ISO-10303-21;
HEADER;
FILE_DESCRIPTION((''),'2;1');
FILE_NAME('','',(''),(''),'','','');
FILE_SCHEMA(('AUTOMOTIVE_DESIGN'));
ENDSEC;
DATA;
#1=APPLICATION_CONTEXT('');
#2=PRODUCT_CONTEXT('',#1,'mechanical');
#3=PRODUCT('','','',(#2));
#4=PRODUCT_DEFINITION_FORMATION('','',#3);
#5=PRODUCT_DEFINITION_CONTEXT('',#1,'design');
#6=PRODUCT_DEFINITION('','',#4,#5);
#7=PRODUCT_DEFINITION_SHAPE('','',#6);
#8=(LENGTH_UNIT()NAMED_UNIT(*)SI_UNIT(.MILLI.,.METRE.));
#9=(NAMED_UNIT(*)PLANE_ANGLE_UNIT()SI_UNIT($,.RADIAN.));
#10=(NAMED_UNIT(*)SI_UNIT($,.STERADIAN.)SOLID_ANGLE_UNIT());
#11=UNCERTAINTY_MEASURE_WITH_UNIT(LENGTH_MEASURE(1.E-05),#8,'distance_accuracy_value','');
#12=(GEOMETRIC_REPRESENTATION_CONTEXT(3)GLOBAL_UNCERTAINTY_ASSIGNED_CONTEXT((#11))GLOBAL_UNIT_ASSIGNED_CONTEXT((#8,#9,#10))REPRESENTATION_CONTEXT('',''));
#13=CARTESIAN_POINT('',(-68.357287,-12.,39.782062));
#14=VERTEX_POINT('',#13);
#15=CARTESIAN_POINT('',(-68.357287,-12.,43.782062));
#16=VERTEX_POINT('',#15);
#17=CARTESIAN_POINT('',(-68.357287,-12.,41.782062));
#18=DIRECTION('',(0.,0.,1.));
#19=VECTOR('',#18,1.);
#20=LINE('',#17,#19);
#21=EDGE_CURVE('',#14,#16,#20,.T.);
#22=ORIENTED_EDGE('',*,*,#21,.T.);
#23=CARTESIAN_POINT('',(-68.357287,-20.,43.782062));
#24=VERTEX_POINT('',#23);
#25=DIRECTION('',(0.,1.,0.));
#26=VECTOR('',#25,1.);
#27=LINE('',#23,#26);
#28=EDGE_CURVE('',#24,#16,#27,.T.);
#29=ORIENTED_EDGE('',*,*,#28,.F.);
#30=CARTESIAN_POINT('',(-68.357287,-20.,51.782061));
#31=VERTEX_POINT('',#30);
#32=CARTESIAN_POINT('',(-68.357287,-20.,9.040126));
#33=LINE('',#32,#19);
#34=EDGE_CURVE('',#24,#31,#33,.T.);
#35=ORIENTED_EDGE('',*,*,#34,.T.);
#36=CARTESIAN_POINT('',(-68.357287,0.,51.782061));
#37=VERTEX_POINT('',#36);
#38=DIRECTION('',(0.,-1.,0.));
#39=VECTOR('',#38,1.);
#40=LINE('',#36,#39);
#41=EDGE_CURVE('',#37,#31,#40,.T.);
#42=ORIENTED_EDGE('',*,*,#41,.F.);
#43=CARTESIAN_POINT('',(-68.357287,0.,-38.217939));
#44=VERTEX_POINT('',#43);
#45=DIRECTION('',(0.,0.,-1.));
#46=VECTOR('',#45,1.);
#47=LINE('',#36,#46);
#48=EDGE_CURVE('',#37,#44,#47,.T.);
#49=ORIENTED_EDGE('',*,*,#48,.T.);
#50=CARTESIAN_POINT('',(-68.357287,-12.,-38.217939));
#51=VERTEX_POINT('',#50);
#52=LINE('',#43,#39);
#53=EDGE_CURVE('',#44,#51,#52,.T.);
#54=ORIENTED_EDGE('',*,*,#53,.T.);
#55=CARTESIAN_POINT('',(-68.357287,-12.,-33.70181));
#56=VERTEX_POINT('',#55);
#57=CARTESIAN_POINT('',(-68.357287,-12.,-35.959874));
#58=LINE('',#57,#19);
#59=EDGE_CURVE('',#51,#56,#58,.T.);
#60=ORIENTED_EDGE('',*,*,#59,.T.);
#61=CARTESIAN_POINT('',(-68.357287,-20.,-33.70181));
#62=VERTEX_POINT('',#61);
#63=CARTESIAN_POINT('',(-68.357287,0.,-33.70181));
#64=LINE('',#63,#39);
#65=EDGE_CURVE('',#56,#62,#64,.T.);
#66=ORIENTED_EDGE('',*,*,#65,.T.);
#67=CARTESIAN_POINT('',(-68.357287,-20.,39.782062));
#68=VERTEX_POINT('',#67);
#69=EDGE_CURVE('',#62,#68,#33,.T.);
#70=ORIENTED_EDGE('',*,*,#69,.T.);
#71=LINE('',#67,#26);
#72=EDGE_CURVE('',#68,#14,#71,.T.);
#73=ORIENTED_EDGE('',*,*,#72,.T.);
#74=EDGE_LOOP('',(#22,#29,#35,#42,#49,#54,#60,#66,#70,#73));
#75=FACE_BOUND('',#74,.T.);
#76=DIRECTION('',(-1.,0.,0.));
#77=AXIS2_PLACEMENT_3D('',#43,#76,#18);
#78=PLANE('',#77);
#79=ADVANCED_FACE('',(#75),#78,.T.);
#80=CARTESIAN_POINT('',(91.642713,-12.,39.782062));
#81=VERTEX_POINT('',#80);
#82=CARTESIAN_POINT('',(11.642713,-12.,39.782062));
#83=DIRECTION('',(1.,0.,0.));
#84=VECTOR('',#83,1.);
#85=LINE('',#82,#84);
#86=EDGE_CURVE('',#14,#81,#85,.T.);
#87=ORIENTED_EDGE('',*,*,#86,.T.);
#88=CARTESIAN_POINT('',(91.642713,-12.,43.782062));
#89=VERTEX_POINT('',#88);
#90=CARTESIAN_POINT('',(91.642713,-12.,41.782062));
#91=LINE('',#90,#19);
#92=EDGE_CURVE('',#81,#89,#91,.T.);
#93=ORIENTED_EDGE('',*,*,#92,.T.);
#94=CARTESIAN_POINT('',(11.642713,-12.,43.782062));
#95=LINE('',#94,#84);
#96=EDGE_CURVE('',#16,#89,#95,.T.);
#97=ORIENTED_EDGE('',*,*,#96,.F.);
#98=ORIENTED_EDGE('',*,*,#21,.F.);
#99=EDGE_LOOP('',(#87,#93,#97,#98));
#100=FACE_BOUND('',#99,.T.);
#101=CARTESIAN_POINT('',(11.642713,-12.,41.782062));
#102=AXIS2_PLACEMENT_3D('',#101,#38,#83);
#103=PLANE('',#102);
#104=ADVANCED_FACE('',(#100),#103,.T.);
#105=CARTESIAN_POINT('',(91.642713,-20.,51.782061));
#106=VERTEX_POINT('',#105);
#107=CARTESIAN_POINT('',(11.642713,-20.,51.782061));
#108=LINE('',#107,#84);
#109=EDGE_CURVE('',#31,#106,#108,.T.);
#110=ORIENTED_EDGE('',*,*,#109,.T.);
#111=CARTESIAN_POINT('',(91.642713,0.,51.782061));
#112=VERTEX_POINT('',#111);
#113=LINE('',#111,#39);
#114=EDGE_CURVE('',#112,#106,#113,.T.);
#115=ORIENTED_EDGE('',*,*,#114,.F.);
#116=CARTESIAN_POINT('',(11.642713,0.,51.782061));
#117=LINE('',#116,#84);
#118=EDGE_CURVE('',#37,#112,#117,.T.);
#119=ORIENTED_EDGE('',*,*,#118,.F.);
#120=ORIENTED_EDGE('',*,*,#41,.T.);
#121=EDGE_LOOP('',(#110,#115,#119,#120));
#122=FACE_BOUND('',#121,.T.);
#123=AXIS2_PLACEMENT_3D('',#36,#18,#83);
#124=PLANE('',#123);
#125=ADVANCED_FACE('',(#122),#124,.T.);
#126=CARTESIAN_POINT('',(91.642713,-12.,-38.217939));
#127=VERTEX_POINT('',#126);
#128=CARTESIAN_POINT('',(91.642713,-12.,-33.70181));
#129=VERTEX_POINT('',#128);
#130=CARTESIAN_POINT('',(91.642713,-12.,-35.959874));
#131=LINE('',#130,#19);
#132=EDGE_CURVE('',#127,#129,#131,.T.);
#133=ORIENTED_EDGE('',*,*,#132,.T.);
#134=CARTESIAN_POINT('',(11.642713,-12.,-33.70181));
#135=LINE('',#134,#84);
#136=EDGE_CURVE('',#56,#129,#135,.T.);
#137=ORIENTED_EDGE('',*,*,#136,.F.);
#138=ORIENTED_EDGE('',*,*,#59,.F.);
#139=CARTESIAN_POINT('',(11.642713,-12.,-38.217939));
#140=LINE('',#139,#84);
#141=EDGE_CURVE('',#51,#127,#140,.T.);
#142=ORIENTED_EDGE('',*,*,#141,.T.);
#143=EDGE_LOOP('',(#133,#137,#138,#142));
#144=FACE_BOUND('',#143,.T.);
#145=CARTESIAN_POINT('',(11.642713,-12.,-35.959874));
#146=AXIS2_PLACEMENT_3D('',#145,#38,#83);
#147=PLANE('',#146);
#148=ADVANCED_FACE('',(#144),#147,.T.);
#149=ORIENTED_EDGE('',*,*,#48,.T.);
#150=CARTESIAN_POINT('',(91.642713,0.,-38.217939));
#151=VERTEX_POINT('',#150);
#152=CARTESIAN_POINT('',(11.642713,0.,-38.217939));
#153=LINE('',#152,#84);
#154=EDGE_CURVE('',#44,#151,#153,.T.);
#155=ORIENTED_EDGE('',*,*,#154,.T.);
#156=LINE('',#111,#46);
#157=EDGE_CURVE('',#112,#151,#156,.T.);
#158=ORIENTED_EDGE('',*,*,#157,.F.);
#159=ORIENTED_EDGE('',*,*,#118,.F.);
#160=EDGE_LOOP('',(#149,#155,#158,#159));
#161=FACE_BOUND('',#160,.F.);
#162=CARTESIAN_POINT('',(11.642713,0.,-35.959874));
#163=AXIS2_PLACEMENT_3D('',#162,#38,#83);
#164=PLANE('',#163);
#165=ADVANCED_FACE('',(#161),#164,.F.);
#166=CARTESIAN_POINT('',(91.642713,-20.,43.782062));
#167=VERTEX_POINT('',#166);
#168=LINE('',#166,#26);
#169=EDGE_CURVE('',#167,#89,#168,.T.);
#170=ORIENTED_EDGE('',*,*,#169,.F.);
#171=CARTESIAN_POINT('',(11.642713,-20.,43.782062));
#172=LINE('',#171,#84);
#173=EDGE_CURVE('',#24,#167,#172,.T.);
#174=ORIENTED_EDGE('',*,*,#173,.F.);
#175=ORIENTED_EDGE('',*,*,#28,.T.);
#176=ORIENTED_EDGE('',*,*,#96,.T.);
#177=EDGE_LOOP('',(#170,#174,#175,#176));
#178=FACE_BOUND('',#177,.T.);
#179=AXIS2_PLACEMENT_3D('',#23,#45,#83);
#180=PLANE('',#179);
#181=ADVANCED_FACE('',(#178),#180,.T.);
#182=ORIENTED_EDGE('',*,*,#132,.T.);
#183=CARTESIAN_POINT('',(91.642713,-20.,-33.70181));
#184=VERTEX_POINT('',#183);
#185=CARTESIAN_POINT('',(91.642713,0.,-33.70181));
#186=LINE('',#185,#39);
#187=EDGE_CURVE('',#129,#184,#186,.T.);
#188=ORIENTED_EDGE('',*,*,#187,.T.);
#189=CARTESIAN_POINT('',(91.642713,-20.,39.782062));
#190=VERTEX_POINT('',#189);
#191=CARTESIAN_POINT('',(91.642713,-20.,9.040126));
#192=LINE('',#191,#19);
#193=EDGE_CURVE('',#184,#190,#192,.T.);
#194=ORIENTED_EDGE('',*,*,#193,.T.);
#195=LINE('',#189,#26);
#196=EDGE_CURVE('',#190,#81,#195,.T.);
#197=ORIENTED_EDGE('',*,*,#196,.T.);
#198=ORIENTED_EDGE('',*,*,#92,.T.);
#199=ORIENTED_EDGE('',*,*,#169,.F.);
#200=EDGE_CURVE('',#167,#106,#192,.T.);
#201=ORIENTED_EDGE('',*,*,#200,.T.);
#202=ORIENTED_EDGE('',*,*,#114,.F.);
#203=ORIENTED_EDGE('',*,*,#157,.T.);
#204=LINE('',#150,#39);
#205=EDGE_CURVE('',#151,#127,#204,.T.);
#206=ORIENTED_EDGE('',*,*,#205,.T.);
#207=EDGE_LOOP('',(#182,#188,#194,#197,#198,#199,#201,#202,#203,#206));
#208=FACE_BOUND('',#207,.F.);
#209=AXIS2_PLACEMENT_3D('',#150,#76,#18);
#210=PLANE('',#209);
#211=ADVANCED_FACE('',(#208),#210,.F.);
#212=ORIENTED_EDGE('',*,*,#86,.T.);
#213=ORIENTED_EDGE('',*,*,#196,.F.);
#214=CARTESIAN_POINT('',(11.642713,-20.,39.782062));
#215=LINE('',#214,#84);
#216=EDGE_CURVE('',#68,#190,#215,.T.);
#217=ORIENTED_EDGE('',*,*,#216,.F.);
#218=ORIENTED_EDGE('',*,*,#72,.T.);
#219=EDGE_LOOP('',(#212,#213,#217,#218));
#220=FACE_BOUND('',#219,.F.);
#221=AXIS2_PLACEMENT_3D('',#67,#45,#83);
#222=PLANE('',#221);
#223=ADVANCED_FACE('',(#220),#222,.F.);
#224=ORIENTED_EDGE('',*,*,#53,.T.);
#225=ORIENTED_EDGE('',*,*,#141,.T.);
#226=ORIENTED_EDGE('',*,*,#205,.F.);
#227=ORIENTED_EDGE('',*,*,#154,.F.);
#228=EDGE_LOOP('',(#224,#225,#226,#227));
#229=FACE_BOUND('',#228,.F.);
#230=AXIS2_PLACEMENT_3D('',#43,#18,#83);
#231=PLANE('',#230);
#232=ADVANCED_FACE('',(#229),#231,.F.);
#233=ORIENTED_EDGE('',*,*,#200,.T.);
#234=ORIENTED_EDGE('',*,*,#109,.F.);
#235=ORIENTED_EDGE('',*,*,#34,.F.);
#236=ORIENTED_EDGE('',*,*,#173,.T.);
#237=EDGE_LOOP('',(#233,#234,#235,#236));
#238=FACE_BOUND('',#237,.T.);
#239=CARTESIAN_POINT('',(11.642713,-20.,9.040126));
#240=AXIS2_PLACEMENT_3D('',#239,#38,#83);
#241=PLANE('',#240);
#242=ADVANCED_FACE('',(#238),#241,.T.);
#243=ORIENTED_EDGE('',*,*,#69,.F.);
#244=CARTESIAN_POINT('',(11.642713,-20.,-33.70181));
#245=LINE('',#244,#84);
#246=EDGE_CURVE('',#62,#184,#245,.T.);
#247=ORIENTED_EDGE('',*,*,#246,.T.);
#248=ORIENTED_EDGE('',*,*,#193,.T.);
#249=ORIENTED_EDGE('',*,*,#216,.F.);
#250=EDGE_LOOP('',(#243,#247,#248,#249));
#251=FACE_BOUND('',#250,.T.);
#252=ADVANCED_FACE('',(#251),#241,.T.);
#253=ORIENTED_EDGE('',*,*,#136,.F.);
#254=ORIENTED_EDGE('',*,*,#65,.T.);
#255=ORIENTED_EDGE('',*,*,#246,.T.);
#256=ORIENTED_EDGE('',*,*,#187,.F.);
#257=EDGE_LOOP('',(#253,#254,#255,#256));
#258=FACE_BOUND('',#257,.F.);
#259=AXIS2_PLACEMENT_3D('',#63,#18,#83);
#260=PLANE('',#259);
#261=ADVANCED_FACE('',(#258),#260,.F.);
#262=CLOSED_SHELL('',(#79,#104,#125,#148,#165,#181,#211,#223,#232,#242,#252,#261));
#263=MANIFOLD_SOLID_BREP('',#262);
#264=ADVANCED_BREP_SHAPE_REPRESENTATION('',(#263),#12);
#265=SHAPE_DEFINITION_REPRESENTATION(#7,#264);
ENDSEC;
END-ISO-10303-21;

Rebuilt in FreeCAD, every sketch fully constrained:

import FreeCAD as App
import Part
import Sketcher

doc = App.newDocument("Part")
body = doc.addObject("PartDesign::Body", "Body")

sketch1 = doc.addObject("Sketcher::SketchObject", "Sketch")
body.addObject(sketch1)
sketch1.AttachmentSupport = (doc.XZ_Plane, [""])
sketch1.MapMode = "FlatFace"
sketch1.addGeometry([
    Part.LineSegment(App.Vector(-68, 52, 0), App.Vector(-68, -34, 0)),
    Part.LineSegment(App.Vector(-68, -34, 0), App.Vector(92, -34, 0)),
    Part.LineSegment(App.Vector(92, -34, 0), App.Vector(92, 52, 0)),
    Part.LineSegment(App.Vector(92, 52, 0), App.Vector(-68, 52, 0)),
], False)
sketch1.addConstraint([
    Sketcher.Constraint("Coincident", 0, 2, 1, 1),
    Sketcher.Constraint("Coincident", 1, 2, 2, 1),
    Sketcher.Constraint("Coincident", 2, 2, 3, 1),
    Sketcher.Constraint("Coincident", 3, 2, 0, 1),
    Sketcher.Constraint("Vertical", 0),
    Sketcher.Constraint("Horizontal", 1),
    Sketcher.Constraint("Vertical", 2),
    Sketcher.Constraint("Horizontal", 3),
    Sketcher.Constraint("DistanceX", 1, 1, 1, 2, 160.0),
    Sketcher.Constraint("DistanceY", 0, 2, 0, 1, 85.483871),
    Sketcher.Constraint("DistanceY", 0, 2, -1, 1, 33.70181),
    Sketcher.Constraint("DistanceX", 0, 2, -1, 1, 68.357287),
])
pad1 = doc.addObject("PartDesign::Pad", "Pad")
body.addObject(pad1)
pad1.Profile = sketch1
pad1.Length = 20

sketch2 = doc.addObject("Sketcher::SketchObject", "Sketch001")
body.addObject(sketch2)
sketch2.AttachmentSupport = (doc.XZ_Plane, [""])
sketch2.MapMode = "FlatFace"
sketch2.addGeometry([
    Part.LineSegment(App.Vector(-68.4, -33.7, 0), App.Vector(-68.4, -38.2, 0)),
    Part.LineSegment(App.Vector(-68.4, -38.2, 0), App.Vector(91.6, -38.2, 0)),
    Part.LineSegment(App.Vector(91.6, -38.2, 0), App.Vector(91.6, -33.7, 0)),
    Part.LineSegment(App.Vector(91.6, -33.7, 0), App.Vector(-68.4, -33.7, 0)),
], False)
sketch2.addConstraint([
    Sketcher.Constraint("Coincident", 0, 2, 1, 1),
    Sketcher.Constraint("Coincident", 1, 2, 2, 1),
    Sketcher.Constraint("Coincident", 2, 2, 3, 1),
    Sketcher.Constraint("Coincident", 3, 2, 0, 1),
    Sketcher.Constraint("Vertical", 0),
    Sketcher.Constraint("Horizontal", 1),
    Sketcher.Constraint("Vertical", 2),
    Sketcher.Constraint("Horizontal", 3),
    Sketcher.Constraint("DistanceX", 1, 1, 1, 2, 160.0),
    Sketcher.Constraint("DistanceY", 0, 2, 0, 1, 4.516129),
    Sketcher.Constraint("DistanceY", 0, 2, -1, 1, 38.217939),
    Sketcher.Constraint("DistanceX", 0, 2, -1, 1, 68.357287),
])
pad2 = doc.addObject("PartDesign::Pad", "Pad001")
body.addObject(pad2)
pad2.Profile = sketch2
pad2.Length = 12

sketch3 = doc.addObject("Sketcher::SketchObject", "Sketch002")
body.addObject(sketch3)
sketch3.AttachmentSupport = (doc.XZ_Plane, [""])
sketch3.MapMode = "FlatFace"
sketch3.AttachmentOffset = App.Placement(App.Vector(0, 0, 20), App.Rotation())
sketch3.addGeometry([
    Part.LineSegment(App.Vector(-68.4, 43.8, 0), App.Vector(-68.4, 39.8, 0)),
    Part.LineSegment(App.Vector(-68.4, 39.8, 0), App.Vector(91.6, 39.8, 0)),
    Part.LineSegment(App.Vector(91.6, 39.8, 0), App.Vector(91.6, 43.8, 0)),
    Part.LineSegment(App.Vector(91.6, 43.8, 0), App.Vector(-68.4, 43.8, 0)),
], False)
sketch3.addConstraint([
    Sketcher.Constraint("Coincident", 0, 2, 1, 1),
    Sketcher.Constraint("Coincident", 1, 2, 2, 1),
    Sketcher.Constraint("Coincident", 2, 2, 3, 1),
    Sketcher.Constraint("Coincident", 3, 2, 0, 1),
    Sketcher.Constraint("Vertical", 0),
    Sketcher.Constraint("Horizontal", 1),
    Sketcher.Constraint("Vertical", 2),
    Sketcher.Constraint("Horizontal", 3),
    Sketcher.Constraint("DistanceX", 1, 1, 1, 2, 160.0),
    Sketcher.Constraint("DistanceY", 0, 2, 0, 1, 4.0),
    Sketcher.Constraint("DistanceX", 0, 2, -1, 1, 68.357287),
    Sketcher.Constraint("DistanceY", -1, 1, 0, 2, 39.782062),
])
pocket1 = doc.addObject("PartDesign::Pocket", "Pocket")
body.addObject(pocket1)
pocket1.Profile = sketch3
pocket1.Length = 8

doc.recompute()
